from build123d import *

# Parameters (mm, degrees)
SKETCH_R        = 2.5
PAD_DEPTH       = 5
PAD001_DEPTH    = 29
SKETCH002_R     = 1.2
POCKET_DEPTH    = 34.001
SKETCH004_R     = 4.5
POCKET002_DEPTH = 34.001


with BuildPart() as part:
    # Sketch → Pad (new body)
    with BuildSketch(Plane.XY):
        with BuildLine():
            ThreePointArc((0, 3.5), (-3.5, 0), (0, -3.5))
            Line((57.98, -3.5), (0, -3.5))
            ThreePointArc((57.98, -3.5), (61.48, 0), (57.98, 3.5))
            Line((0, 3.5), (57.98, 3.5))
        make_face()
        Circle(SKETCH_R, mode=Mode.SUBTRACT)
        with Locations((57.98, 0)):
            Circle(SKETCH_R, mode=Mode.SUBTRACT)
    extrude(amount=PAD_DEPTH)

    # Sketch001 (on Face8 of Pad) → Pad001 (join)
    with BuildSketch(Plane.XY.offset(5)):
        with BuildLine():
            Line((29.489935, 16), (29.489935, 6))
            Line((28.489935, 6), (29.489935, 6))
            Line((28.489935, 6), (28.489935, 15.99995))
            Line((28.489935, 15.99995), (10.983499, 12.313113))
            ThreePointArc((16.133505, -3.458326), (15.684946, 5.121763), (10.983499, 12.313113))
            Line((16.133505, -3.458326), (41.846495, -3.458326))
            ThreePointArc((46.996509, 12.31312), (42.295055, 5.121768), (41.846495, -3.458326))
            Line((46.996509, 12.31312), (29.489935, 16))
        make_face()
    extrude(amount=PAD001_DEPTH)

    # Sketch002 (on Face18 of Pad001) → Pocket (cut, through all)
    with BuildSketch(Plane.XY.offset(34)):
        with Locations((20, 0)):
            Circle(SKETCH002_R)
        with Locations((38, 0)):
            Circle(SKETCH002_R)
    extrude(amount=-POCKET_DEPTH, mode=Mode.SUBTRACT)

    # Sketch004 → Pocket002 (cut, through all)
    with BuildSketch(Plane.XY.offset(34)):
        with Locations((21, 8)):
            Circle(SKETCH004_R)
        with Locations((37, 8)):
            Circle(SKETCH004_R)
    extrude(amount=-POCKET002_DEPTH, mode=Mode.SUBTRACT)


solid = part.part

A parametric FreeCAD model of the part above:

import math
import FreeCAD as App
import Part
import Sketcher

V = App.Vector

doc = App.newDocument("Part")
params = doc.addObject("Spreadsheet::Sheet", "Params")
for row, (alias, value) in enumerate([
    ("sketch1_diameter", "5 mm"),
    ("sketch1_radius", "3.5 mm"),
    ("sketch1_width", "57.98 mm"),
    ("pad1_length", "5 mm"),
    ("sketch2_radius", "16.499999 mm"),
    ("sketch2_width", "1 mm"),
    ("sketch2_height", "10 mm"),
    ("pad2_length", "29 mm"),
    ("sketch3_diameter", "2.4 mm"),
    ("sketch4_diameter", "9 mm"),
], start=1):
    params.set(f"A{row}", alias)
    params.set(f"B{row}", "=" + value)
    params.setAlias(f"B{row}", alias)

body = doc.addObject("PartDesign::Body", "Body")

# Sketch on XY plane
sketch1 = doc.addObject("Sketcher::SketchObject", "Sketch")
body.addObject(sketch1)
sketch1.AttachmentSupport = (doc.XY_Plane, [""])
sketch1.MapMode = "FlatFace"
sketch1.addGeometry([
    Part.ArcOfCircle(Part.Circle(V(0, 0, 0), V(0, 0, 1), 3.5), math.radians(90), math.radians(270)),  # 0
    Part.LineSegment(V(0, -3.5, 0), V(58, -3.5, 0)),  # 1
    Part.ArcOfCircle(Part.Circle(V(58, 0, 0), V(0, 0, 1), 3.5), math.radians(-90), math.radians(90)),  # 2
    Part.LineSegment(V(58, 3.5, 0), V(0, 3.5, 0)),  # 3
    Part.Circle(V(0, 0, 0), V(0, 0, 1), 2.5),  # 4
    Part.Circle(V(58, 0, 0), V(0, 0, 1), 2.5),  # 5
], False)
sketch1.addConstraint([
    Sketcher.Constraint("Tangent", 0, 2, 1, 1),
    Sketcher.Constraint("Tangent", 1, 2, 2, 1),
    Sketcher.Constraint("Tangent", 2, 2, 3, 1),
    Sketcher.Constraint("Tangent", 3, 2, 0, 1),
    Sketcher.Constraint("Horizontal", 1),
    Sketcher.Constraint("Horizontal", 3),
    Sketcher.Constraint("Coincident", 0, 3, -1, 1),
    Sketcher.Constraint("Coincident", 4, 3, -1, 1),
    Sketcher.Constraint("Coincident", 5, 3, 2, 3),
    Sketcher.Constraint("Equal", 4, 5),
    Sketcher.Constraint("Diameter", 4, 5.0),
    Sketcher.Constraint("Radius", 0, 3.5),
    Sketcher.Constraint("DistanceX", 1, 1, 1, 2, 57.98),
])
sketch1.setExpression("Constraints[10]", "Params.sketch1_diameter")
sketch1.setExpression("Constraints[11]", "Params.sketch1_radius")
sketch1.setExpression("Constraints[12]", "Params.sketch1_width")
pad1 = doc.addObject("PartDesign::Pad", "Pad")
body.addObject(pad1)
pad1.Profile = sketch1
pad1.setExpression("Length", "Params.pad1_length")

# Sketch on XY plane
sketch2 = doc.addObject("Sketcher::SketchObject", "Sketch001")
body.addObject(sketch2)
sketch2.AttachmentSupport = (doc.XY_Plane, [""])
sketch2.MapMode = "FlatFace"
sketch2.AttachmentOffset = App.Placement(V(0, 0, 5), App.Rotation())
sketch2.addGeometry([
    Part.LineSegment(V(29.5, 16, 0), V(29.5, 6, 0)),  # 0
    Part.LineSegment(V(29.5, 6, 0), V(28.5, 6, 0)),  # 1
    Part.LineSegment(V(28.5, 6, 0), V(28.5, 16, 0)),  # 2
    Part.LineSegment(V(28.5, 16, 0), V(11, 12.3, 0)),  # 3
    Part.ArcOfCircle(Part.Circle(V(0, 0, 0), V(0, 0, 1), 16.5), math.radians(-12), math.radians(48)),  # 4
    Part.LineSegment(V(16.1, -3.5, 0), V(41.8, -3.5, 0)),  # 5
    Part.ArcOfCircle(Part.Circle(V(58, 0, 0), V(0, 0, 1), 16.5), math.radians(132), math.radians(192)),  # 6
    Part.LineSegment(V(47, 12.3, 0), V(29.5, 16, 0)),  # 7
], False)
sketch2.addConstraint([
    Sketcher.Constraint("Coincident", 0, 2, 1, 1),
    Sketcher.Constraint("Coincident", 1, 2, 2, 1),
    Sketcher.Constraint("Coincident", 2, 2, 3, 1),
    Sketcher.Constraint("Coincident", 3, 2, 4, 2),
    Sketcher.Constraint("Coincident", 4, 1, 5, 1),
    Sketcher.Constraint("Coincident", 5, 2, 6, 2),
    Sketcher.Constraint("Coincident", 6, 1, 7, 1),
    Sketcher.Constraint("Coincident", 7, 2, 0, 1),
    Sketcher.Constraint("Vertical", 0),
    Sketcher.Constraint("Horizontal", 1),
    Sketcher.Constraint("Vertical", 2),
    Sketcher.Constraint("Horizontal", 5),
    Sketcher.Constraint("Coincident", 4, 3, -1, 1),
    Sketcher.Constraint("PointOnObject", 6, 3, -1),
    Sketcher.Constraint("Radius", 6, 16.499999),
    Sketcher.Constraint("DistanceX", 1, 2, 1, 1, 1.0),
    Sketcher.Constraint("DistanceY", 0, 2, 0, 1, 10.0),
    Sketcher.Constraint("DistanceY", -1, 1, 0, 2, 6.0),
    Sketcher.Constraint("DistanceX", -1, 1, 6, 3, 57.979999),
    Sketcher.Constraint("Radius", 4, 16.500003),
    Sketcher.Constraint("DistanceX", 5, 1, 5, 2, 25.71299),
    Sketcher.Constraint("DistanceY", 2, 1, 2, 2, 9.99995),
    Sketcher.Constraint("DistanceX", -1, 1, 3, 2, 10.983499),
    Sketcher.Constraint("Distance", 7, 17.89059),
    Sketcher.Constraint("DistanceX", -1, 1, 6, 1, 46.996509),
])
sketch2.setExpression("Constraints[14]", "Params.sketch2_radius")
sketch2.setExpression("Constraints[15]", "Params.sketch2_width")
sketch2.setExpression("Constraints[16]", "Params.sketch2_height")
pad2 = doc.addObject("PartDesign::Pad", "Pad001")
body.addObject(pad2)
pad2.Profile = sketch2
pad2.setExpression("Length", "Params.pad2_length")

# Sketch on XY plane
sketch3 = doc.addObject("Sketcher::SketchObject", "Sketch002")
body.addObject(sketch3)
sketch3.AttachmentSupport = (doc.XY_Plane, [""])
sketch3.MapMode = "FlatFace"
sketch3.AttachmentOffset = App.Placement(V(0, 0, 34), App.Rotation())
sketch3.addGeometry([
    Part.Circle(V(20, 0, 0), V(0, 0, 1), 1.2),
    Part.Circle(V(38, 0, 0), V(0, 0, 1), 1.2),
], False)
sketch3.addConstraint([
    Sketcher.Constraint("Equal", 0, 1),
    Sketcher.Constraint("PointOnObject", 0, 3, -1),
    Sketcher.Constraint("PointOnObject", 1, 3, -1),
    Sketcher.Constraint("Diameter", 0, 2.4),
    Sketcher.Constraint("DistanceX", -1, 1, 0, 3, 20.0),
    Sketcher.Constraint("DistanceX", -1, 1, 1, 3, 38.0),
])
sketch3.setExpression("Constraints[3]", "Params.sketch3_diameter")
pocket1 = doc.addObject("PartDesign::Pocket", "Pocket")
body.addObject(pocket1)
pocket1.Profile = sketch3
pocket1.Type = "ThroughAll"

# Sketch on XY plane
sketch4 = doc.addObject("Sketcher::SketchObject", "Sketch003")
body.addObject(sketch4)
sketch4.AttachmentSupport = (doc.XY_Plane, [""])
sketch4.MapMode = "FlatFace"
sketch4.AttachmentOffset = App.Placement(V(0, 0, 34), App.Rotation())
sketch4.addGeometry([
    Part.Circle(V(21, 8, 0), V(0, 0, 1), 4.5),
    Part.Circle(V(37, 8, 0), V(0, 0, 1), 4.5),
], False)
sketch4.addConstraint([
    Sketcher.Constraint("Equal", 0, 1),
    Sketcher.Constraint("Horizontal", 0, 3, 1, 3),
    Sketcher.Constraint("Diameter", 0, 9.0),
    Sketcher.Constraint("DistanceX", -1, 1, 0, 3, 21.0),
    Sketcher.Constraint("DistanceY", -1, 1, 0, 3, 8.0),
    Sketcher.Constraint("DistanceX", -1, 1, 1, 3, 37.0),
])
sketch4.setExpression("Constraints[2]", "Params.sketch4_diameter")
pocket2 = doc.addObject("PartDesign::Pocket", "Pocket001")
body.addObject(pocket2)
pocket2.Profile = sketch4
pocket2.Type = "ThroughAll"

doc.recompute()
